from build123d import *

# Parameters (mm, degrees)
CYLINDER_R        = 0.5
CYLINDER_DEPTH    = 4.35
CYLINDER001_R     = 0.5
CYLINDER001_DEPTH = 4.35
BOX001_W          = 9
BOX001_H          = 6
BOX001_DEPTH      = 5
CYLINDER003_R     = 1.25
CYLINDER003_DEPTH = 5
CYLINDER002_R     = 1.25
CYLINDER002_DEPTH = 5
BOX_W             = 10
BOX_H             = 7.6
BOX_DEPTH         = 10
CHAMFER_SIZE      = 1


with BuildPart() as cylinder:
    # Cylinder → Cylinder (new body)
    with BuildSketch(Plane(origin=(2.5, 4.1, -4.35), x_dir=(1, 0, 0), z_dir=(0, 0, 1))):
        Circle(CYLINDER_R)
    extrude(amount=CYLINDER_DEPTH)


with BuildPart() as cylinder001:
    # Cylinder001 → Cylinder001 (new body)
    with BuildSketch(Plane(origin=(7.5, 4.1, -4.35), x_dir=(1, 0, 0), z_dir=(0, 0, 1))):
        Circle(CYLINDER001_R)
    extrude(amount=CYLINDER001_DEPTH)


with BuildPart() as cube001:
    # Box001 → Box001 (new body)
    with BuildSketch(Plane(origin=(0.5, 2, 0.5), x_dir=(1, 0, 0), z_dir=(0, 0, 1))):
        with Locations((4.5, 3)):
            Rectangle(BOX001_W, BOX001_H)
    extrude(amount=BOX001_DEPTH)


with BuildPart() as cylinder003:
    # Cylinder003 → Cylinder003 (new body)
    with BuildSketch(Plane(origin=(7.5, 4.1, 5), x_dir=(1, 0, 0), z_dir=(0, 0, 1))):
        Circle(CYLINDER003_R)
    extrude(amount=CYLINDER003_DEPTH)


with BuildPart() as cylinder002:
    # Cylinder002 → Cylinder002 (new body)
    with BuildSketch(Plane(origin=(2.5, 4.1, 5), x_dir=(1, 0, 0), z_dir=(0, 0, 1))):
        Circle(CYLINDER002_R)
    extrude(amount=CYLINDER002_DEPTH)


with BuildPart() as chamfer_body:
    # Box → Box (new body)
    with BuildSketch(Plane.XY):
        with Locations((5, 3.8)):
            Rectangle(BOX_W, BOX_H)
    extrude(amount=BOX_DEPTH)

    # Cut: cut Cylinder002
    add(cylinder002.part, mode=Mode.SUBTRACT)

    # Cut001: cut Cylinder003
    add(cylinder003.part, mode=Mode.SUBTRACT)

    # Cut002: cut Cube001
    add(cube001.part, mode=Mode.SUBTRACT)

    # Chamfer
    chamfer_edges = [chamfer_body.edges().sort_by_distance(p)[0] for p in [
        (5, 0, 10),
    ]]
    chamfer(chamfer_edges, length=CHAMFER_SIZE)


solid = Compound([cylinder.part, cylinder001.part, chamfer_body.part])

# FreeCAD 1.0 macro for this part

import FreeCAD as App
import Part
import Sketcher


def edges_at(feature, points):
    """Names of the edges that pass closest to the given points."""
    edges = feature.Shape.Edges
    near = lambda p: min(range(len(edges)), key=lambda i: edges[i].distToShape(Part.Vertex(*p))[0])
    return sorted({f"Edge{near(p) + 1}" for p in points})

doc = App.newDocument("Part")
body = doc.addObject("PartDesign::Body", "Body")

sketch1 = body.newObject("Sketcher::SketchObject", "Sketch")
sketch1.AttachmentSupport = (doc.getObject("XY_Plane"), [""])
sketch1.MapMode = "FlatFace"
sketch1.AttachmentOffset = App.Placement(App.Vector(0, 0, -4.35), App.Rotation())
sketch1.addGeometry(Part.Circle(App.Vector(2.5, 4.1, 0), App.Vector(0, 0, 1), 0.5), False)
sketch1.addConstraint(Sketcher.Constraint("Diameter", 0, 1.0))
sketch1.addConstraint(Sketcher.Constraint("DistanceX", -1, 1, 0, 3, 2.5))
sketch1.addConstraint(Sketcher.Constraint("DistanceY", -1, 1, 0, 3, 4.1))
pad1 = body.newObject("PartDesign::Pad", "Pad")
pad1.Profile = sketch1
pad1.Length = 4.35
body2 = doc.addObject("PartDesign::Body", "Body001")

sketch2 = body2.newObject("Sketcher::SketchObject", "Sketch001")
sketch2.AttachmentSupport = (doc.getObject("XY_Plane001"), [""])
sketch2.MapMode = "FlatFace"
sketch2.AttachmentOffset = App.Placement(App.Vector(0, 0, -4.35), App.Rotation())
sketch2.addGeometry(Part.Circle(App.Vector(7.5, 4.1, 0), App.Vector(0, 0, 1), 0.5), False)
sketch2.addConstraint(Sketcher.Constraint("Diameter", 0, 1.0))
sketch2.addConstraint(Sketcher.Constraint("DistanceX", -1, 1, 0, 3, 7.5))
sketch2.addConstraint(Sketcher.Constraint("DistanceY", -1, 1, 0, 3, 4.1))
pad2 = body2.newObject("PartDesign::Pad", "Pad001")
pad2.Profile = sketch2
pad2.Length = 4.35
body3 = doc.addObject("PartDesign::Body", "Body002")

sketch3 = body3.newObject("Sketcher::SketchObject", "Sketch002")
sketch3.AttachmentSupport = (doc.getObject("XY_Plane002"), [""])
sketch3.MapMode = "FlatFace"
sketch3.AttachmentOffset = App.Placement(App.Vector(0, 0, 0.5), App.Rotation())
sketch3.addGeometry(Part.LineSegment(App.Vector(0, 8, 0), App.Vector(0, 2, 0)), False)
sketch3.addGeometry(Part.LineSegment(App.Vector(0, 2, 0), App.Vector(10, 2, 0)), False)
sketch3.addGeometry(Part.LineSegment(App.Vector(10, 2, 0), App.Vector(10, 8, 0)), False)
sketch3.addGeometry(Part.LineSegment(App.Vector(10, 8, 0), App.Vector(0, 8, 0)), False)
sketch3.addConstraint(Sketcher.Constraint("Coincident", 0, 2, 1, 1))
sketch3.addConstraint(Sketcher.Constraint("Coincident", 1, 2, 2, 1))
sketch3.addConstraint(Sketcher.Constraint("Coincident", 2, 2, 3, 1))
sketch3.addConstraint(Sketcher.Constraint("Coincident", 3, 2, 0, 1))
sketch3.addConstraint(Sketcher.Constraint("Vertical", 0))
sketch3.addConstraint(Sketcher.Constraint("Horizontal", 1))
sketch3.addConstraint(Sketcher.Constraint("Vertical", 2))
sketch3.addConstraint(Sketcher.Constraint("Horizontal", 3))
sketch3.addConstraint(Sketcher.Constraint("DistanceX", 1, 1, 1, 2, 9.0))
sketch3.addConstraint(Sketcher.Constraint("DistanceY", 0, 2, 0, 1, 6.0))
sketch3.addConstraint(Sketcher.Constraint("DistanceY", -1, 1, 0, 2, 2.0))
sketch3.addConstraint(Sketcher.Constraint("DistanceX", -1, 1, 0, 2, 0.5))
pad3 = body3.newObject("PartDesign::Pad", "Pad002")
pad3.Profile = sketch3
pad3.Length = 5
body4 = doc.addObject("PartDesign::Body", "Body003")

sketch4 = body4.newObject("Sketcher::SketchObject", "Sketch003")
sketch4.AttachmentSupport = (doc.getObject("XY_Plane003"), [""])
sketch4.MapMode = "FlatFace"
sketch4.AttachmentOffset = App.Placement(App.Vector(0, 0, 5), App.Rotation())
sketch4.addGeometry(Part.Circle(App.Vector(7.5, 4.1, 0), App.Vector(0, 0, 1), 1.2), False)
sketch4.addConstraint(Sketcher.Constraint("Diameter", 0, 2.5))
sketch4.addConstraint(Sketcher.Constraint("DistanceX", -1, 1, 0, 3, 7.5))
sketch4.addConstraint(Sketcher.Constraint("DistanceY", -1, 1, 0, 3, 4.1))
pad4 = body4.newObject("PartDesign::Pad", "Pad003")
pad4.Profile = sketch4
pad4.Length = 5
body5 = doc.addObject("PartDesign::Body", "Body004")

sketch5 = body5.newObject("Sketcher::SketchObject", "Sketch004")
sketch5.AttachmentSupport = (doc.getObject("XY_Plane004"), [""])
sketch5.MapMode = "FlatFace"
sketch5.AttachmentOffset = App.Placement(App.Vector(0, 0, 5), App.Rotation())
sketch5.addGeometry(Part.Circle(App.Vector(2.5, 4.1, 0), App.Vector(0, 0, 1), 1.2), False)
sketch5.addConstraint(Sketcher.Constraint("Diameter", 0, 2.5))
sketch5.addConstraint(Sketcher.Constraint("DistanceX", -1, 1, 0, 3, 2.5))
sketch5.addConstraint(Sketcher.Constraint("DistanceY", -1, 1, 0, 3, 4.1))
pad5 = body5.newObject("PartDesign::Pad", "Pad004")
pad5.Profile = sketch5
pad5.Length = 5
body6 = doc.addObject("PartDesign::Body", "Body005")

sketch6 = body6.newObject("Sketcher::SketchObject", "Sketch005")
sketch6.AttachmentSupport = (doc.getObject("XY_Plane005"), [""])
sketch6.MapMode = "FlatFace"
sketch6.addGeometry(Part.LineSegment(App.Vector(0, 8, 0), App.Vector(0, 0, 0)), False)
sketch6.addGeometry(Part.LineSegment(App.Vector(0, 0, 0), App.Vector(10, 0, 0)), False)
sketch6.addGeometry(Part.LineSegment(App.Vector(10, 0, 0), App.Vector(10, 8, 0)), False)
sketch6.addGeometry(Part.LineSegment(App.Vector(10, 8, 0), App.Vector(0, 8, 0)), False)
sketch6.addConstraint(Sketcher.Constraint("Coincident", 0, 2, 1, 1))
sketch6.addConstraint(Sketcher.Constraint("Coincident", 1, 2, 2, 1))
sketch6.addConstraint(Sketcher.Constraint("Coincident", 2, 2, 3, 1))
sketch6.addConstraint(Sketcher.Constraint("Coincident", 3, 2, 0, 1))
sketch6.addConstraint(Sketcher.Constraint("Vertical", 0))
sketch6.addConstraint(Sketcher.Constraint("Horizontal", 1))
sketch6.addConstraint(Sketcher.Constraint("Vertical", 2))
sketch6.addConstraint(Sketcher.Constraint("Horizontal", 3))
sketch6.addConstraint(Sketcher.Constraint("Coincident", 0, 2, -1, 1))
sketch6.addConstraint(Sketcher.Constraint("DistanceX", 1, 1, 1, 2, 10.0))
sketch6.addConstraint(Sketcher.Constraint("DistanceY", 0, 2, 0, 1, 7.6))
pad6 = body6.newObject("PartDesign::Pad", "Pad005")
pad6.Profile = sketch6
pad6.Length = 10
doc.recompute()

boolean = body6.newObject("PartDesign::Boolean", "Boolean")
boolean.Type = "Cut"
boolean.addObjects([body5])
doc.recompute()

boolean2 = body6.newObject("PartDesign::Boolean", "Boolean001")
boolean2.Type = "Cut"
boolean2.addObjects([body4])
doc.recompute()

boolean3 = body6.newObject("PartDesign::Boolean", "Boolean002")
boolean3.Type = "Cut"
boolean3.addObjects([body3])
doc.recompute()

chamfer = body6.newObject("PartDesign::Chamfer", "Chamfer")
chamfer.Base = (boolean3, edges_at(boolean3, [(5, 0, 10)]))
chamfer.Size = 1

doc.recompute()
